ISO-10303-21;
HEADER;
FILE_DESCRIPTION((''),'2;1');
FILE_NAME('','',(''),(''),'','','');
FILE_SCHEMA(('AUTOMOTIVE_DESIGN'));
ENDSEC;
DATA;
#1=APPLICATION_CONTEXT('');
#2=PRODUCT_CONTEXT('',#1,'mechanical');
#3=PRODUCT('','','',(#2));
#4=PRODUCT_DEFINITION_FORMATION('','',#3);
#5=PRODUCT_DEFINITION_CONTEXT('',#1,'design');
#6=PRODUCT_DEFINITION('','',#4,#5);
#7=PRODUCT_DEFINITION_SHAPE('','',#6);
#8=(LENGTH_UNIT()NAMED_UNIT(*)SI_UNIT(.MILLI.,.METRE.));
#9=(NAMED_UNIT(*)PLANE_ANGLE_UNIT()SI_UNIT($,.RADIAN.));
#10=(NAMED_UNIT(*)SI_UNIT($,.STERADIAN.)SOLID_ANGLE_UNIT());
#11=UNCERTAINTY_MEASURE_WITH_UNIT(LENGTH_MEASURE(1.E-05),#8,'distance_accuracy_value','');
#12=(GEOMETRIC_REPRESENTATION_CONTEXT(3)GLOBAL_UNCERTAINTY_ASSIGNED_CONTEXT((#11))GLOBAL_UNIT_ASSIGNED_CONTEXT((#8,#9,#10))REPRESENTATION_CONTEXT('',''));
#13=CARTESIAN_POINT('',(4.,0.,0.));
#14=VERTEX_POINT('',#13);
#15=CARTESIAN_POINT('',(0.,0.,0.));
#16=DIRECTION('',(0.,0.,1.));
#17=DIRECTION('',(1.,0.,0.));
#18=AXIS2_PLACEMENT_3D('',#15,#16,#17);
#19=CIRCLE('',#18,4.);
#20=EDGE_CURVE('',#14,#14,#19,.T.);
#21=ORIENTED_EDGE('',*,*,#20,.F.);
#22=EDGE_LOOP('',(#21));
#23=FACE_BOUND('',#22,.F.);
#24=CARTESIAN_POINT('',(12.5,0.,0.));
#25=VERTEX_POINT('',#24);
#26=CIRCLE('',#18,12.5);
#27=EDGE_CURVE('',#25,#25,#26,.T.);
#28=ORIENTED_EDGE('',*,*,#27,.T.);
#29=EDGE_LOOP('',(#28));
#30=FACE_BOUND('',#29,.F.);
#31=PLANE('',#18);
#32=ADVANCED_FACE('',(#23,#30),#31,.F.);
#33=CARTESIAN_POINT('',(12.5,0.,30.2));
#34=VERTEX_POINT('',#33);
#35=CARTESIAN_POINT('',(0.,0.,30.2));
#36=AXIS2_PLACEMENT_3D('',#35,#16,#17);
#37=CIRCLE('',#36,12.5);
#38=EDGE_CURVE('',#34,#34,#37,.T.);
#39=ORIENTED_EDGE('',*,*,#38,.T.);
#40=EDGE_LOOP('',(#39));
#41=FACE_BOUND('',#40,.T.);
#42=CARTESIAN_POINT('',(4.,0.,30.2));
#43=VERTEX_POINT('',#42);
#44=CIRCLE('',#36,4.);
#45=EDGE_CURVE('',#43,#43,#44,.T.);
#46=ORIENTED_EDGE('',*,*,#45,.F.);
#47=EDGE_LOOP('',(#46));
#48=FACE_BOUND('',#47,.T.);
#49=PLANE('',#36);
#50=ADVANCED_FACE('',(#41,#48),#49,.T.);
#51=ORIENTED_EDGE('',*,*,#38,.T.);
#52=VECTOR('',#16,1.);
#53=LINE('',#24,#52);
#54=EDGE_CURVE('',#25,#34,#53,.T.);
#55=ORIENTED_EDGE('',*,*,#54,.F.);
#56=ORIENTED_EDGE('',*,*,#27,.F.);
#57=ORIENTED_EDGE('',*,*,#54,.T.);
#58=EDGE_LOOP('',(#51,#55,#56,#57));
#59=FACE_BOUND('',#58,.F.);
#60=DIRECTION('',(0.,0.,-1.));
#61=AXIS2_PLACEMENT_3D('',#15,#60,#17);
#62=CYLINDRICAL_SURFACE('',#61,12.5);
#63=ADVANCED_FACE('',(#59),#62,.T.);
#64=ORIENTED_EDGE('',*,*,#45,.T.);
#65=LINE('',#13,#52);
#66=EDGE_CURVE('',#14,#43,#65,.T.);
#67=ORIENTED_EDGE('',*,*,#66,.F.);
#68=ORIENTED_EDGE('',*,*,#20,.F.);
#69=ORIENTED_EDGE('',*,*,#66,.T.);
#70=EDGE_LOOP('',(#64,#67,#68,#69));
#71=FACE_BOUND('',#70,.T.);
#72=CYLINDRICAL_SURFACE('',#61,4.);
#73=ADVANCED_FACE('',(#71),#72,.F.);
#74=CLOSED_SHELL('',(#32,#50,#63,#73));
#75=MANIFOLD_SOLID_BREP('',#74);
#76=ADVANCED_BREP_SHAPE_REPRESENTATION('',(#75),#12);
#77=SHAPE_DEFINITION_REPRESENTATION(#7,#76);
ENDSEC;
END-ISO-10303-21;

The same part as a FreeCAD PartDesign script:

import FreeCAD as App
import Part
import Sketcher

V = App.Vector

doc = App.newDocument("Part")
body = doc.addObject("PartDesign::Body", "Body")

sketch1 = body.newObject("Sketcher::SketchObject", "Sketch")
sketch1.AttachmentSupport = (doc.getObject("XY_Plane"), [""])
sketch1.MapMode = "FlatFace"
sketch1.addGeometry([
    Part.Circle(V(0, 0, 0), V(0, 0, 1), 12.5),
    Part.Circle(V(0, 0, 0), V(0, 0, 1), 4),
], False)
sketch1.addConstraint([
    Sketcher.Constraint("Coincident", 0, 3, -1, 1),
    Sketcher.Constraint("Coincident", 1, 3, -1, 1),
    Sketcher.Constraint("Diameter", 0, 25.0),
    Sketcher.Constraint("Diameter", 1, 8.0),
])
pad1 = body.newObject("PartDesign::Pad", "Pad")
pad1.Profile = sketch1
pad1.Length = 30.2

doc.recompute()
